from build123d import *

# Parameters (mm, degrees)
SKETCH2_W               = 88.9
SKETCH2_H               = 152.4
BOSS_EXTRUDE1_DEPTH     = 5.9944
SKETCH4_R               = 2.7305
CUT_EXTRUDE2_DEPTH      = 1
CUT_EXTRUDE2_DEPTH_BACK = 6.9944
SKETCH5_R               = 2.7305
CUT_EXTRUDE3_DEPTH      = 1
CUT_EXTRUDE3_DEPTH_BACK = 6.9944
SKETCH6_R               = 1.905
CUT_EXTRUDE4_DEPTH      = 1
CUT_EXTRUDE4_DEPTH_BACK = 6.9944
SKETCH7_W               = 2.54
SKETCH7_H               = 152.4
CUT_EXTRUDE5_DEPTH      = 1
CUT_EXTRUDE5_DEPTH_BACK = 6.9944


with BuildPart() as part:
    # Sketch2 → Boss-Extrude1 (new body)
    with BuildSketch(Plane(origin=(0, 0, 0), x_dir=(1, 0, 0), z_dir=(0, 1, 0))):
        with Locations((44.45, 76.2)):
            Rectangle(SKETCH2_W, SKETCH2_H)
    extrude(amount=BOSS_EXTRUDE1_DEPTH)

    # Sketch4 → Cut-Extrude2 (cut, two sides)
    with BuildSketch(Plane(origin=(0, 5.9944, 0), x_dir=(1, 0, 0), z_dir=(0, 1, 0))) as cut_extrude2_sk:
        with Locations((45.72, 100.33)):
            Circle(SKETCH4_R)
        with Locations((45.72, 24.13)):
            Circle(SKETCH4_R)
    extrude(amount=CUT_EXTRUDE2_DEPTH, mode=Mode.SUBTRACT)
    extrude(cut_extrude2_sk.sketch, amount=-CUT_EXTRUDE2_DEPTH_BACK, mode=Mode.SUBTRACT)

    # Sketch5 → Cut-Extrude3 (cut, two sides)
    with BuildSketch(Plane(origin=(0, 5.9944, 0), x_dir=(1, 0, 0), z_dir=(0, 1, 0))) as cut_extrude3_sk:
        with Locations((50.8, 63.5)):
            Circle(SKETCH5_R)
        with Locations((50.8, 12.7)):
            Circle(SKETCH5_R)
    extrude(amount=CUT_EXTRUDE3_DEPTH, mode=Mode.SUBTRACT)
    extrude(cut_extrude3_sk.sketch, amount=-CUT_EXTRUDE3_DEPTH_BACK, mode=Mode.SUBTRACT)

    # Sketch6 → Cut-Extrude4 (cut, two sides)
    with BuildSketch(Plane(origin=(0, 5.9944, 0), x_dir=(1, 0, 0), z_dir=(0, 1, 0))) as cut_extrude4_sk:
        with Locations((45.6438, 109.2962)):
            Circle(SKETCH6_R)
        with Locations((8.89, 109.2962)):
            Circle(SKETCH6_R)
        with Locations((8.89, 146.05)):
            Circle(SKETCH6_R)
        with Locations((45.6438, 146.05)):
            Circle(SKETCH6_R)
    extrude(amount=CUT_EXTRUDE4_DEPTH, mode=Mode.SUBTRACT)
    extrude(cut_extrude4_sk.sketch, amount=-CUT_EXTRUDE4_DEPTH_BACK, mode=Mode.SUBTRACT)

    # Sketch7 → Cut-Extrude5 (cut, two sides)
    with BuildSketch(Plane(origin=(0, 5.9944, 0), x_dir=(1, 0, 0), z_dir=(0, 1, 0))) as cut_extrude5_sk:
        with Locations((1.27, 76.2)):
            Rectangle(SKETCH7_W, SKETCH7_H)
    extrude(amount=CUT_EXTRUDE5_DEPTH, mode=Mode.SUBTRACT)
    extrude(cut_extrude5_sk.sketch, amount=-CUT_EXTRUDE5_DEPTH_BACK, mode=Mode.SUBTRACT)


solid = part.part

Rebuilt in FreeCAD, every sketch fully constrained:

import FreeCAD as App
import Part
import Sketcher

V = App.Vector
Q = App.Units.Quantity

doc = App.newDocument("Part")
body = doc.addObject("PartDesign::Body", "Body")

# Sketch on XZ plane
sketch1 = body.newObject("Sketcher::SketchObject", "Sketch")
sketch1.AttachmentSupport = (doc.getObject("XZ_Plane"), [""])
sketch1.MapMode = "FlatFace"
sketch1.addGeometry([
    Part.LineSegment(V(0, -152, 0), V(0, 0, 0)),
    Part.LineSegment(V(0, 0, 0), V(89, 0, 0)),
    Part.LineSegment(V(89, 0, 0), V(89, -152, 0)),
    Part.LineSegment(V(89, -152, 0), V(0, -152, 0)),
], False)
sketch1.addConstraint([
    Sketcher.Constraint("Coincident", 0, 2, 1, 1),
    Sketcher.Constraint("Coincident", 1, 2, 2, 1),
    Sketcher.Constraint("Coincident", 2, 2, 3, 1),
    Sketcher.Constraint("Coincident", 3, 2, 0, 1),
    Sketcher.Constraint("Vertical", 0),
    Sketcher.Constraint("Horizontal", 1),
    Sketcher.Constraint("Vertical", 2),
    Sketcher.Constraint("Horizontal", 3),
    Sketcher.Constraint("Coincident", 0, 2, -1, 1),
    Sketcher.Constraint("DistanceY", 0, 1, 0, 2, Q("6 in")),
    Sketcher.Constraint("DistanceX", 1, 1, 1, 2, Q("3.5 in")),
])
pad1 = body.newObject("PartDesign::Pad", "Pad")
pad1.Profile = sketch1
pad1.Length = Q("0.236 in")
pad1.Reversed = True

# Sketch on XZ plane
sketch2 = body.newObject("Sketcher::SketchObject", "Sketch001")
sketch2.AttachmentSupport = (doc.getObject("XZ_Plane"), [""])
sketch2.MapMode = "FlatFace"
sketch2.AttachmentOffset = App.Placement(V(0, 0, -0.236 * 25.4), App.Rotation())
sketch2.addGeometry([
    Part.Circle(V(45.7, -100.3, 0), V(0, 0, 1), 2.7),
    Part.Circle(V(45.7, -24.1, 0), V(0, 0, 1), 2.7),
], False)
sketch2.addConstraint([
    Sketcher.Constraint("Equal", 0, 1),
    Sketcher.Constraint("Vertical", 0, 3, 1, 3),
    Sketcher.Constraint("Diameter", 0, Q("0.215 in")),
    Sketcher.Constraint("DistanceY", 0, 3, 1, 3, Q("3 in")),
    Sketcher.Constraint("DistanceX", -1, 1, 0, 3, Q("1.8 in")),
    Sketcher.Constraint("DistanceY", 0, 3, -1, 1, Q("3.95 in")),
])
pocket1 = body.newObject("PartDesign::Pocket", "Pocket")
pocket1.Profile = sketch2
pocket1.Type = "ThroughAll"
pocket1.Midplane = True

# Sketch on XZ plane
sketch3 = body.newObject("Sketcher::SketchObject", "Sketch002")
sketch3.AttachmentSupport = (doc.getObject("XZ_Plane"), [""])
sketch3.MapMode = "FlatFace"
sketch3.AttachmentOffset = App.Placement(V(0, 0, -0.236 * 25.4), App.Rotation())
sketch3.addGeometry([
    Part.Circle(V(50.8, -63.5, 0), V(0, 0, 1), 2.7),
    Part.Circle(V(50.8, -12.7, 0), V(0, 0, 1), 2.7),
], False)
sketch3.addConstraint([
    Sketcher.Constraint("Equal", 0, 1),
    Sketcher.Constraint("Vertical", 0, 3, 1, 3),
    Sketcher.Constraint("Diameter", 0, Q("0.215 in")),
    Sketcher.Constraint("DistanceX", -1, 1, 0, 3, Q("2 in")),
    Sketcher.Constraint("DistanceY", 0, 3, 1, 3, Q("2 in")),
    Sketcher.Constraint("DistanceY", 0, 3, -1, 1, Q("2.5 in")),
])
pocket2 = body.newObject("PartDesign::Pocket", "Pocket001")
pocket2.Profile = sketch3
pocket2.Type = "ThroughAll"
pocket2.Midplane = True

# Sketch on XZ plane
sketch4 = body.newObject("Sketcher::SketchObject", "Sketch003")
sketch4.AttachmentSupport = (doc.getObject("XZ_Plane"), [""])
sketch4.MapMode = "FlatFace"
sketch4.AttachmentOffset = App.Placement(V(0, 0, -0.236 * 25.4), App.Rotation())
sketch4.addGeometry([
    Part.Circle(V(45.6, -109.3, 0), V(0, 0, 1), 1.9),
    Part.Circle(V(8.9, -109.3, 0), V(0, 0, 1), 1.9),
    Part.Circle(V(8.9, -146.1, 0), V(0, 0, 1), 1.9),
    Part.Circle(V(45.6, -146.1, 0), V(0, 0, 1), 1.9),
], False)
sketch4.addConstraint([
    Sketcher.Constraint("Equal", 0, 1),
    Sketcher.Constraint("Equal", 1, 2),
    Sketcher.Constraint("Equal", 2, 3),
    Sketcher.Constraint("Horizontal", 0, 3, 1, 3),
    Sketcher.Constraint("Horizontal", 2, 3, 3, 3),
    Sketcher.Constraint("Vertical", 1, 3, 2, 3),
    Sketcher.Constraint("Vertical", 0, 3, 3, 3),
    Sketcher.Constraint("Diameter", 0, Q("0.15 in")),
    Sketcher.Constraint("DistanceX", -1, 1, 1, 3, Q("0.35 in")),
    Sketcher.Constraint("DistanceY", 2, 3, -1, 1, Q("5.75 in")),
    Sketcher.Constraint("DistanceX", -1, 1, 0, 3, Q("1.797 in")),
    Sketcher.Constraint("DistanceY", 0, 3, -1, 1, Q("4.303 in")),
])
pocket3 = body.newObject("PartDesign::Pocket", "Pocket002")
pocket3.Profile = sketch4
pocket3.Type = "ThroughAll"
pocket3.Midplane = True

# Sketch on XZ plane
sketch5 = body.newObject("Sketcher::SketchObject", "Sketch004")
sketch5.AttachmentSupport = (doc.getObject("XZ_Plane"), [""])
sketch5.MapMode = "FlatFace"
sketch5.AttachmentOffset = App.Placement(V(0, 0, -0.236 * 25.4), App.Rotation())
sketch5.addGeometry([
    Part.LineSegment(V(0, -152.4, 0), V(0, 0, 0)),
    Part.LineSegment(V(0, 0, 0), V(2.5, 0, 0)),
    Part.LineSegment(V(2.5, 0, 0), V(2.5, -152.4, 0)),
    Part.LineSegment(V(2.5, -152.4, 0), V(0, -152.4, 0)),
], False)
sketch5.addConstraint([
    Sketcher.Constraint("Coincident", 0, 2, 1, 1),
    Sketcher.Constraint("Coincident", 1, 2, 2, 1),
    Sketcher.Constraint("Coincident", 2, 2, 3, 1),
    Sketcher.Constraint("Coincident", 3, 2, 0, 1),
    Sketcher.Constraint("Vertical", 0),
    Sketcher.Constraint("Horizontal", 1),
    Sketcher.Constraint("Vertical", 2),
    Sketcher.Constraint("Horizontal", 3),
    Sketcher.Constraint("Coincident", 0, 2, -1, 1),
    Sketcher.Constraint("DistanceY", 0, 1, 0, 2, Q("6 in")),
    Sketcher.Constraint("DistanceX", 1, 1, 1, 2, Q("0.1 in")),
])
pocket4 = body.newObject("PartDesign::Pocket", "Pocket003")
pocket4.Profile = sketch5
pocket4.Type = "ThroughAll"
pocket4.Midplane = True

doc.recompute()
